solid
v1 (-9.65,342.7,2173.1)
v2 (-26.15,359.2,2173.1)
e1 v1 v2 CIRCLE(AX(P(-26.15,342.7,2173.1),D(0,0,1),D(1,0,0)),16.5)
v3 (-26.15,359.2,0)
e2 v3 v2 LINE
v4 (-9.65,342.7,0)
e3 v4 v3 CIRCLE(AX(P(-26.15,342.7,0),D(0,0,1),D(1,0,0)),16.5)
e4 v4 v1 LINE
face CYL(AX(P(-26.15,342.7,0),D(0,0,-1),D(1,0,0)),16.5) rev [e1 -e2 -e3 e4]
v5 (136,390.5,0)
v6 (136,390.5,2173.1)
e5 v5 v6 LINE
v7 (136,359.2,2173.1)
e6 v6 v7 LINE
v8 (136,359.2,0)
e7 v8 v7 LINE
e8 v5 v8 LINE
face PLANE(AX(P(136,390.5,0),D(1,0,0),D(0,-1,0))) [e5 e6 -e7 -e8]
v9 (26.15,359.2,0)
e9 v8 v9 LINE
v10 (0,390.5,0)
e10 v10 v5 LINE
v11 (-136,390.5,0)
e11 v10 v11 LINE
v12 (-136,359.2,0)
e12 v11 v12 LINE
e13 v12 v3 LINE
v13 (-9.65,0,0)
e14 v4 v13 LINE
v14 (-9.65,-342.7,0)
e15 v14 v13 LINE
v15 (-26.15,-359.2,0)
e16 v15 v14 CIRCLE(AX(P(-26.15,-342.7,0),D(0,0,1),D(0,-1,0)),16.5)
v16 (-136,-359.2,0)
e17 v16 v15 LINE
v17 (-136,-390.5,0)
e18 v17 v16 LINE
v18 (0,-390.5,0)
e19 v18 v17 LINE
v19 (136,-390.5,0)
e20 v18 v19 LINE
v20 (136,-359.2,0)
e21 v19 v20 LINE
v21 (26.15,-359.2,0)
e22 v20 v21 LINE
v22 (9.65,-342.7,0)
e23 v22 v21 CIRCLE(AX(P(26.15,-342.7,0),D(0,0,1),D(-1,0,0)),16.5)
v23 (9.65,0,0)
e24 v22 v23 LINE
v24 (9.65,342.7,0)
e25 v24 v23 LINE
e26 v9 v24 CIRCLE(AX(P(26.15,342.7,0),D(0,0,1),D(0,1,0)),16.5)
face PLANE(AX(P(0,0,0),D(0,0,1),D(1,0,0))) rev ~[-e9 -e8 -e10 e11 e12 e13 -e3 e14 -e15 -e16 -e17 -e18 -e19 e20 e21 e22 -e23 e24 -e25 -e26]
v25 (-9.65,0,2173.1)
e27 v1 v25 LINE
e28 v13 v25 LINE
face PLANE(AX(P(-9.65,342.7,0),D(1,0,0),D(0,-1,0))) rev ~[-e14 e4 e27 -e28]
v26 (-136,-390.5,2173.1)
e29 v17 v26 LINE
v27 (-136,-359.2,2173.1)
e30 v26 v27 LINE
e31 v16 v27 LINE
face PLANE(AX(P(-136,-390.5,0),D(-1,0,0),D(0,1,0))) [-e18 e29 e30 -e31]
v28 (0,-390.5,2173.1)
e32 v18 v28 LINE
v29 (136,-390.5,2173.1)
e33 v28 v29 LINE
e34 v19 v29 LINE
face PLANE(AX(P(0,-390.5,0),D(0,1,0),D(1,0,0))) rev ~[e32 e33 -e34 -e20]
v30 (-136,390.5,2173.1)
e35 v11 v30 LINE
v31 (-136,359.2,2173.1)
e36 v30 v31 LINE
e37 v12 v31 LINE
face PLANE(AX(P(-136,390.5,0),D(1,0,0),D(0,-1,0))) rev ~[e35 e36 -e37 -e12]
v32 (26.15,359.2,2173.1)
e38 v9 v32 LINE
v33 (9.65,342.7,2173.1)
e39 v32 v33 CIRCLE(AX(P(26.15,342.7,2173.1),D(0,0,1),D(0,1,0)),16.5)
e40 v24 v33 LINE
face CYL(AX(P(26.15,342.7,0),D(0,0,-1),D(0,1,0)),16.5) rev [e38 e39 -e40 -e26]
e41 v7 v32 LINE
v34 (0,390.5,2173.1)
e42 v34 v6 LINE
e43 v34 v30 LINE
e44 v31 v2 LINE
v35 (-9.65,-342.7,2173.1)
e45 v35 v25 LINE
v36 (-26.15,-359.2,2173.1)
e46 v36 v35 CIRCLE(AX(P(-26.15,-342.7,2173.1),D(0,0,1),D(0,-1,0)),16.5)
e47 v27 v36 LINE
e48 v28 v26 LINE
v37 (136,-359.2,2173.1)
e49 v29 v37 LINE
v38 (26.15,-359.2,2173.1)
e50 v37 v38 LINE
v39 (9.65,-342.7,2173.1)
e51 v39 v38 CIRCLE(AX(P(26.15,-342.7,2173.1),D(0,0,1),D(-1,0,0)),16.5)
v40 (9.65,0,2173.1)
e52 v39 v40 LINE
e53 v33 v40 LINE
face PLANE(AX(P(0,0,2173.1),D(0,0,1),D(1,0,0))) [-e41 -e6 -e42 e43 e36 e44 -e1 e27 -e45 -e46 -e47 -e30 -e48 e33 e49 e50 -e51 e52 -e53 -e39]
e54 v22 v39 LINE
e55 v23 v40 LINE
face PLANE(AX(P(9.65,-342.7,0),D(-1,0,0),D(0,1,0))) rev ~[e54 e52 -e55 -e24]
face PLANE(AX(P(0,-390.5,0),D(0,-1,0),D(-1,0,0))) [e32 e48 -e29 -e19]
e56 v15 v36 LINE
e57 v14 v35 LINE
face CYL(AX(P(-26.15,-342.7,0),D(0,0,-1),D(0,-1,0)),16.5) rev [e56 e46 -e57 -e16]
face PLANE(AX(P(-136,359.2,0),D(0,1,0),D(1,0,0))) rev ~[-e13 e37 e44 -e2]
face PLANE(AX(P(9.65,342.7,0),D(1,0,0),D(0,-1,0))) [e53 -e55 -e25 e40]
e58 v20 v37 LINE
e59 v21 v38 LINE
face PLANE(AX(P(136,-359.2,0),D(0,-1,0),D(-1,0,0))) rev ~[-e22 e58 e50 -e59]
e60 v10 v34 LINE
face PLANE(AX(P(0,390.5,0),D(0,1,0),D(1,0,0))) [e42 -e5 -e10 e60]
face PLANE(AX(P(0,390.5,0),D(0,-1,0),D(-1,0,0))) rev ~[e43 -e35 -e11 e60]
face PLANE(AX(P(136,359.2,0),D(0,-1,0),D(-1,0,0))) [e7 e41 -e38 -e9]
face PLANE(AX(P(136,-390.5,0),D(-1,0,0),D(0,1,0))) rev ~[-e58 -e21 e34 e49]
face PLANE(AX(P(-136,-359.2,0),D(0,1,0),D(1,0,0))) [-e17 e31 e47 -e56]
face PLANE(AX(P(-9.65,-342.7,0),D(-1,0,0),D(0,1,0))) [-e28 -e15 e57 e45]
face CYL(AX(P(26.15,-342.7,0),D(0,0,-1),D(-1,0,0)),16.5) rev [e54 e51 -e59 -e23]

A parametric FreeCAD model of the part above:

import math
import FreeCAD as App
import Part
import Sketcher

doc = App.newDocument("Part")
body = doc.addObject("PartDesign::Body", "Body")

# Sketch on XY plane
sketch1 = body.newObject("Sketcher::SketchObject", "Sketch")
sketch1.AttachmentSupport = (doc.getObject("XY_Plane"), [""])
sketch1.MapMode = "FlatFace"
sketch1.addGeometry([
    Part.LineSegment(App.Vector(-136, -359, 0), App.Vector(-136, -390, 0)),  # 0
    Part.LineSegment(App.Vector(-136, -390, 0), App.Vector(136, -390, 0)),  # 1
    Part.LineSegment(App.Vector(136, -390, 0), App.Vector(136, -359, 0)),  # 2
    Part.LineSegment(App.Vector(136, -359, 0), App.Vector(26, -359, 0)),  # 3
    Part.ArcOfCircle(Part.Circle(App.Vector(26, -343, 0), App.Vector(0, 0, 1), 16), math.radians(180), math.radians(270)),  # 4
    Part.LineSegment(App.Vector(10, -343, 0), App.Vector(10, 343, 0)),  # 5
    Part.ArcOfCircle(Part.Circle(App.Vector(26, 343, 0), App.Vector(0, 0, 1), 16), math.radians(90), math.radians(180)),  # 6
    Part.LineSegment(App.Vector(26, 359, 0), App.Vector(136, 359, 0)),  # 7
    Part.LineSegment(App.Vector(136, 359, 0), App.Vector(136, 390, 0)),  # 8
    Part.LineSegment(App.Vector(136, 390, 0), App.Vector(-136, 390, 0)),  # 9
    Part.LineSegment(App.Vector(-136, 390, 0), App.Vector(-136, 359, 0)),  # 10
    Part.LineSegment(App.Vector(-136, 359, 0), App.Vector(-26, 359, 0)),  # 11
    Part.ArcOfCircle(Part.Circle(App.Vector(-26, 343, 0), App.Vector(0, 0, 1), 16), math.radians(0), math.radians(90)),  # 12
    Part.LineSegment(App.Vector(-10, 343, 0), App.Vector(-10, -343, 0)),  # 13
    Part.ArcOfCircle(Part.Circle(App.Vector(-26, -343, 0), App.Vector(0, 0, 1), 16), math.radians(-90), math.radians(0)),  # 14
    Part.LineSegment(App.Vector(-26, -359, 0), App.Vector(-136, -359, 0)),  # 15
], False)
sketch1.addConstraint([
    Sketcher.Constraint("Coincident", 0, 2, 1, 1),
    Sketcher.Constraint("Coincident", 1, 2, 2, 1),
    Sketcher.Constraint("Coincident", 2, 2, 3, 1),
    Sketcher.Constraint("Tangent", 3, 2, 4, 2),
    Sketcher.Constraint("Tangent", 4, 1, 5, 1),
    Sketcher.Constraint("Tangent", 5, 2, 6, 2),
    Sketcher.Constraint("Tangent", 6, 1, 7, 1),
    Sketcher.Constraint("Coincident", 7, 2, 8, 1),
    Sketcher.Constraint("Coincident", 8, 2, 9, 1),
    Sketcher.Constraint("Coincident", 9, 2, 10, 1),
    Sketcher.Constraint("Coincident", 10, 2, 11, 1),
    Sketcher.Constraint("Tangent", 11, 2, 12, 2),
    Sketcher.Constraint("Tangent", 12, 1, 13, 1),
    Sketcher.Constraint("Tangent", 13, 2, 14, 2),
    Sketcher.Constraint("Tangent", 14, 1, 15, 1),
    Sketcher.Constraint("Coincident", 15, 2, 0, 1),
    Sketcher.Constraint("Vertical", 0),
    Sketcher.Constraint("Horizontal", 1),
    Sketcher.Constraint("Vertical", 2),
    Sketcher.Constraint("Horizontal", 3),
    Sketcher.Constraint("Vertical", 5),
    Sketcher.Constraint("Horizontal", 7),
    Sketcher.Constraint("Vertical", 8),
    Sketcher.Constraint("Horizontal", 9),
    Sketcher.Constraint("Vertical", 10),
    Sketcher.Constraint("Horizontal", 11),
    Sketcher.Constraint("Vertical", 13),
    Sketcher.Constraint("Horizontal", 15),
    Sketcher.Constraint("Equal", 4, 6),
    Sketcher.Constraint("Equal", 6, 12),
    Sketcher.Constraint("Equal", 12, 14),
    Sketcher.Constraint("Symmetric", 4, 3, 12, 3, -1, 1),
    Sketcher.Constraint("Symmetric", 0, 2, 8, 2, -1, 1),
    Sketcher.Constraint("Symmetric", 7, 2, 10, 2, -2),
    Sketcher.Constraint("Symmetric", 2, 2, 15, 2, -2),
    Sketcher.Constraint("Radius", 4, 16.5),
    Sketcher.Constraint("DistanceY", 0, 2, 0, 1, 31.3),
    Sketcher.Constraint("DistanceX", 0, 2, -1, 1, 136.0),
    Sketcher.Constraint("DistanceY", 0, 2, -1, 1, 390.5),
    Sketcher.Constraint("DistanceX", -1, 1, 4, 1, 9.65),
])
pad1 = body.newObject("PartDesign::Pad", "Pad")
pad1.Profile = sketch1
pad1.Length = 2173.1

doc.recompute()
